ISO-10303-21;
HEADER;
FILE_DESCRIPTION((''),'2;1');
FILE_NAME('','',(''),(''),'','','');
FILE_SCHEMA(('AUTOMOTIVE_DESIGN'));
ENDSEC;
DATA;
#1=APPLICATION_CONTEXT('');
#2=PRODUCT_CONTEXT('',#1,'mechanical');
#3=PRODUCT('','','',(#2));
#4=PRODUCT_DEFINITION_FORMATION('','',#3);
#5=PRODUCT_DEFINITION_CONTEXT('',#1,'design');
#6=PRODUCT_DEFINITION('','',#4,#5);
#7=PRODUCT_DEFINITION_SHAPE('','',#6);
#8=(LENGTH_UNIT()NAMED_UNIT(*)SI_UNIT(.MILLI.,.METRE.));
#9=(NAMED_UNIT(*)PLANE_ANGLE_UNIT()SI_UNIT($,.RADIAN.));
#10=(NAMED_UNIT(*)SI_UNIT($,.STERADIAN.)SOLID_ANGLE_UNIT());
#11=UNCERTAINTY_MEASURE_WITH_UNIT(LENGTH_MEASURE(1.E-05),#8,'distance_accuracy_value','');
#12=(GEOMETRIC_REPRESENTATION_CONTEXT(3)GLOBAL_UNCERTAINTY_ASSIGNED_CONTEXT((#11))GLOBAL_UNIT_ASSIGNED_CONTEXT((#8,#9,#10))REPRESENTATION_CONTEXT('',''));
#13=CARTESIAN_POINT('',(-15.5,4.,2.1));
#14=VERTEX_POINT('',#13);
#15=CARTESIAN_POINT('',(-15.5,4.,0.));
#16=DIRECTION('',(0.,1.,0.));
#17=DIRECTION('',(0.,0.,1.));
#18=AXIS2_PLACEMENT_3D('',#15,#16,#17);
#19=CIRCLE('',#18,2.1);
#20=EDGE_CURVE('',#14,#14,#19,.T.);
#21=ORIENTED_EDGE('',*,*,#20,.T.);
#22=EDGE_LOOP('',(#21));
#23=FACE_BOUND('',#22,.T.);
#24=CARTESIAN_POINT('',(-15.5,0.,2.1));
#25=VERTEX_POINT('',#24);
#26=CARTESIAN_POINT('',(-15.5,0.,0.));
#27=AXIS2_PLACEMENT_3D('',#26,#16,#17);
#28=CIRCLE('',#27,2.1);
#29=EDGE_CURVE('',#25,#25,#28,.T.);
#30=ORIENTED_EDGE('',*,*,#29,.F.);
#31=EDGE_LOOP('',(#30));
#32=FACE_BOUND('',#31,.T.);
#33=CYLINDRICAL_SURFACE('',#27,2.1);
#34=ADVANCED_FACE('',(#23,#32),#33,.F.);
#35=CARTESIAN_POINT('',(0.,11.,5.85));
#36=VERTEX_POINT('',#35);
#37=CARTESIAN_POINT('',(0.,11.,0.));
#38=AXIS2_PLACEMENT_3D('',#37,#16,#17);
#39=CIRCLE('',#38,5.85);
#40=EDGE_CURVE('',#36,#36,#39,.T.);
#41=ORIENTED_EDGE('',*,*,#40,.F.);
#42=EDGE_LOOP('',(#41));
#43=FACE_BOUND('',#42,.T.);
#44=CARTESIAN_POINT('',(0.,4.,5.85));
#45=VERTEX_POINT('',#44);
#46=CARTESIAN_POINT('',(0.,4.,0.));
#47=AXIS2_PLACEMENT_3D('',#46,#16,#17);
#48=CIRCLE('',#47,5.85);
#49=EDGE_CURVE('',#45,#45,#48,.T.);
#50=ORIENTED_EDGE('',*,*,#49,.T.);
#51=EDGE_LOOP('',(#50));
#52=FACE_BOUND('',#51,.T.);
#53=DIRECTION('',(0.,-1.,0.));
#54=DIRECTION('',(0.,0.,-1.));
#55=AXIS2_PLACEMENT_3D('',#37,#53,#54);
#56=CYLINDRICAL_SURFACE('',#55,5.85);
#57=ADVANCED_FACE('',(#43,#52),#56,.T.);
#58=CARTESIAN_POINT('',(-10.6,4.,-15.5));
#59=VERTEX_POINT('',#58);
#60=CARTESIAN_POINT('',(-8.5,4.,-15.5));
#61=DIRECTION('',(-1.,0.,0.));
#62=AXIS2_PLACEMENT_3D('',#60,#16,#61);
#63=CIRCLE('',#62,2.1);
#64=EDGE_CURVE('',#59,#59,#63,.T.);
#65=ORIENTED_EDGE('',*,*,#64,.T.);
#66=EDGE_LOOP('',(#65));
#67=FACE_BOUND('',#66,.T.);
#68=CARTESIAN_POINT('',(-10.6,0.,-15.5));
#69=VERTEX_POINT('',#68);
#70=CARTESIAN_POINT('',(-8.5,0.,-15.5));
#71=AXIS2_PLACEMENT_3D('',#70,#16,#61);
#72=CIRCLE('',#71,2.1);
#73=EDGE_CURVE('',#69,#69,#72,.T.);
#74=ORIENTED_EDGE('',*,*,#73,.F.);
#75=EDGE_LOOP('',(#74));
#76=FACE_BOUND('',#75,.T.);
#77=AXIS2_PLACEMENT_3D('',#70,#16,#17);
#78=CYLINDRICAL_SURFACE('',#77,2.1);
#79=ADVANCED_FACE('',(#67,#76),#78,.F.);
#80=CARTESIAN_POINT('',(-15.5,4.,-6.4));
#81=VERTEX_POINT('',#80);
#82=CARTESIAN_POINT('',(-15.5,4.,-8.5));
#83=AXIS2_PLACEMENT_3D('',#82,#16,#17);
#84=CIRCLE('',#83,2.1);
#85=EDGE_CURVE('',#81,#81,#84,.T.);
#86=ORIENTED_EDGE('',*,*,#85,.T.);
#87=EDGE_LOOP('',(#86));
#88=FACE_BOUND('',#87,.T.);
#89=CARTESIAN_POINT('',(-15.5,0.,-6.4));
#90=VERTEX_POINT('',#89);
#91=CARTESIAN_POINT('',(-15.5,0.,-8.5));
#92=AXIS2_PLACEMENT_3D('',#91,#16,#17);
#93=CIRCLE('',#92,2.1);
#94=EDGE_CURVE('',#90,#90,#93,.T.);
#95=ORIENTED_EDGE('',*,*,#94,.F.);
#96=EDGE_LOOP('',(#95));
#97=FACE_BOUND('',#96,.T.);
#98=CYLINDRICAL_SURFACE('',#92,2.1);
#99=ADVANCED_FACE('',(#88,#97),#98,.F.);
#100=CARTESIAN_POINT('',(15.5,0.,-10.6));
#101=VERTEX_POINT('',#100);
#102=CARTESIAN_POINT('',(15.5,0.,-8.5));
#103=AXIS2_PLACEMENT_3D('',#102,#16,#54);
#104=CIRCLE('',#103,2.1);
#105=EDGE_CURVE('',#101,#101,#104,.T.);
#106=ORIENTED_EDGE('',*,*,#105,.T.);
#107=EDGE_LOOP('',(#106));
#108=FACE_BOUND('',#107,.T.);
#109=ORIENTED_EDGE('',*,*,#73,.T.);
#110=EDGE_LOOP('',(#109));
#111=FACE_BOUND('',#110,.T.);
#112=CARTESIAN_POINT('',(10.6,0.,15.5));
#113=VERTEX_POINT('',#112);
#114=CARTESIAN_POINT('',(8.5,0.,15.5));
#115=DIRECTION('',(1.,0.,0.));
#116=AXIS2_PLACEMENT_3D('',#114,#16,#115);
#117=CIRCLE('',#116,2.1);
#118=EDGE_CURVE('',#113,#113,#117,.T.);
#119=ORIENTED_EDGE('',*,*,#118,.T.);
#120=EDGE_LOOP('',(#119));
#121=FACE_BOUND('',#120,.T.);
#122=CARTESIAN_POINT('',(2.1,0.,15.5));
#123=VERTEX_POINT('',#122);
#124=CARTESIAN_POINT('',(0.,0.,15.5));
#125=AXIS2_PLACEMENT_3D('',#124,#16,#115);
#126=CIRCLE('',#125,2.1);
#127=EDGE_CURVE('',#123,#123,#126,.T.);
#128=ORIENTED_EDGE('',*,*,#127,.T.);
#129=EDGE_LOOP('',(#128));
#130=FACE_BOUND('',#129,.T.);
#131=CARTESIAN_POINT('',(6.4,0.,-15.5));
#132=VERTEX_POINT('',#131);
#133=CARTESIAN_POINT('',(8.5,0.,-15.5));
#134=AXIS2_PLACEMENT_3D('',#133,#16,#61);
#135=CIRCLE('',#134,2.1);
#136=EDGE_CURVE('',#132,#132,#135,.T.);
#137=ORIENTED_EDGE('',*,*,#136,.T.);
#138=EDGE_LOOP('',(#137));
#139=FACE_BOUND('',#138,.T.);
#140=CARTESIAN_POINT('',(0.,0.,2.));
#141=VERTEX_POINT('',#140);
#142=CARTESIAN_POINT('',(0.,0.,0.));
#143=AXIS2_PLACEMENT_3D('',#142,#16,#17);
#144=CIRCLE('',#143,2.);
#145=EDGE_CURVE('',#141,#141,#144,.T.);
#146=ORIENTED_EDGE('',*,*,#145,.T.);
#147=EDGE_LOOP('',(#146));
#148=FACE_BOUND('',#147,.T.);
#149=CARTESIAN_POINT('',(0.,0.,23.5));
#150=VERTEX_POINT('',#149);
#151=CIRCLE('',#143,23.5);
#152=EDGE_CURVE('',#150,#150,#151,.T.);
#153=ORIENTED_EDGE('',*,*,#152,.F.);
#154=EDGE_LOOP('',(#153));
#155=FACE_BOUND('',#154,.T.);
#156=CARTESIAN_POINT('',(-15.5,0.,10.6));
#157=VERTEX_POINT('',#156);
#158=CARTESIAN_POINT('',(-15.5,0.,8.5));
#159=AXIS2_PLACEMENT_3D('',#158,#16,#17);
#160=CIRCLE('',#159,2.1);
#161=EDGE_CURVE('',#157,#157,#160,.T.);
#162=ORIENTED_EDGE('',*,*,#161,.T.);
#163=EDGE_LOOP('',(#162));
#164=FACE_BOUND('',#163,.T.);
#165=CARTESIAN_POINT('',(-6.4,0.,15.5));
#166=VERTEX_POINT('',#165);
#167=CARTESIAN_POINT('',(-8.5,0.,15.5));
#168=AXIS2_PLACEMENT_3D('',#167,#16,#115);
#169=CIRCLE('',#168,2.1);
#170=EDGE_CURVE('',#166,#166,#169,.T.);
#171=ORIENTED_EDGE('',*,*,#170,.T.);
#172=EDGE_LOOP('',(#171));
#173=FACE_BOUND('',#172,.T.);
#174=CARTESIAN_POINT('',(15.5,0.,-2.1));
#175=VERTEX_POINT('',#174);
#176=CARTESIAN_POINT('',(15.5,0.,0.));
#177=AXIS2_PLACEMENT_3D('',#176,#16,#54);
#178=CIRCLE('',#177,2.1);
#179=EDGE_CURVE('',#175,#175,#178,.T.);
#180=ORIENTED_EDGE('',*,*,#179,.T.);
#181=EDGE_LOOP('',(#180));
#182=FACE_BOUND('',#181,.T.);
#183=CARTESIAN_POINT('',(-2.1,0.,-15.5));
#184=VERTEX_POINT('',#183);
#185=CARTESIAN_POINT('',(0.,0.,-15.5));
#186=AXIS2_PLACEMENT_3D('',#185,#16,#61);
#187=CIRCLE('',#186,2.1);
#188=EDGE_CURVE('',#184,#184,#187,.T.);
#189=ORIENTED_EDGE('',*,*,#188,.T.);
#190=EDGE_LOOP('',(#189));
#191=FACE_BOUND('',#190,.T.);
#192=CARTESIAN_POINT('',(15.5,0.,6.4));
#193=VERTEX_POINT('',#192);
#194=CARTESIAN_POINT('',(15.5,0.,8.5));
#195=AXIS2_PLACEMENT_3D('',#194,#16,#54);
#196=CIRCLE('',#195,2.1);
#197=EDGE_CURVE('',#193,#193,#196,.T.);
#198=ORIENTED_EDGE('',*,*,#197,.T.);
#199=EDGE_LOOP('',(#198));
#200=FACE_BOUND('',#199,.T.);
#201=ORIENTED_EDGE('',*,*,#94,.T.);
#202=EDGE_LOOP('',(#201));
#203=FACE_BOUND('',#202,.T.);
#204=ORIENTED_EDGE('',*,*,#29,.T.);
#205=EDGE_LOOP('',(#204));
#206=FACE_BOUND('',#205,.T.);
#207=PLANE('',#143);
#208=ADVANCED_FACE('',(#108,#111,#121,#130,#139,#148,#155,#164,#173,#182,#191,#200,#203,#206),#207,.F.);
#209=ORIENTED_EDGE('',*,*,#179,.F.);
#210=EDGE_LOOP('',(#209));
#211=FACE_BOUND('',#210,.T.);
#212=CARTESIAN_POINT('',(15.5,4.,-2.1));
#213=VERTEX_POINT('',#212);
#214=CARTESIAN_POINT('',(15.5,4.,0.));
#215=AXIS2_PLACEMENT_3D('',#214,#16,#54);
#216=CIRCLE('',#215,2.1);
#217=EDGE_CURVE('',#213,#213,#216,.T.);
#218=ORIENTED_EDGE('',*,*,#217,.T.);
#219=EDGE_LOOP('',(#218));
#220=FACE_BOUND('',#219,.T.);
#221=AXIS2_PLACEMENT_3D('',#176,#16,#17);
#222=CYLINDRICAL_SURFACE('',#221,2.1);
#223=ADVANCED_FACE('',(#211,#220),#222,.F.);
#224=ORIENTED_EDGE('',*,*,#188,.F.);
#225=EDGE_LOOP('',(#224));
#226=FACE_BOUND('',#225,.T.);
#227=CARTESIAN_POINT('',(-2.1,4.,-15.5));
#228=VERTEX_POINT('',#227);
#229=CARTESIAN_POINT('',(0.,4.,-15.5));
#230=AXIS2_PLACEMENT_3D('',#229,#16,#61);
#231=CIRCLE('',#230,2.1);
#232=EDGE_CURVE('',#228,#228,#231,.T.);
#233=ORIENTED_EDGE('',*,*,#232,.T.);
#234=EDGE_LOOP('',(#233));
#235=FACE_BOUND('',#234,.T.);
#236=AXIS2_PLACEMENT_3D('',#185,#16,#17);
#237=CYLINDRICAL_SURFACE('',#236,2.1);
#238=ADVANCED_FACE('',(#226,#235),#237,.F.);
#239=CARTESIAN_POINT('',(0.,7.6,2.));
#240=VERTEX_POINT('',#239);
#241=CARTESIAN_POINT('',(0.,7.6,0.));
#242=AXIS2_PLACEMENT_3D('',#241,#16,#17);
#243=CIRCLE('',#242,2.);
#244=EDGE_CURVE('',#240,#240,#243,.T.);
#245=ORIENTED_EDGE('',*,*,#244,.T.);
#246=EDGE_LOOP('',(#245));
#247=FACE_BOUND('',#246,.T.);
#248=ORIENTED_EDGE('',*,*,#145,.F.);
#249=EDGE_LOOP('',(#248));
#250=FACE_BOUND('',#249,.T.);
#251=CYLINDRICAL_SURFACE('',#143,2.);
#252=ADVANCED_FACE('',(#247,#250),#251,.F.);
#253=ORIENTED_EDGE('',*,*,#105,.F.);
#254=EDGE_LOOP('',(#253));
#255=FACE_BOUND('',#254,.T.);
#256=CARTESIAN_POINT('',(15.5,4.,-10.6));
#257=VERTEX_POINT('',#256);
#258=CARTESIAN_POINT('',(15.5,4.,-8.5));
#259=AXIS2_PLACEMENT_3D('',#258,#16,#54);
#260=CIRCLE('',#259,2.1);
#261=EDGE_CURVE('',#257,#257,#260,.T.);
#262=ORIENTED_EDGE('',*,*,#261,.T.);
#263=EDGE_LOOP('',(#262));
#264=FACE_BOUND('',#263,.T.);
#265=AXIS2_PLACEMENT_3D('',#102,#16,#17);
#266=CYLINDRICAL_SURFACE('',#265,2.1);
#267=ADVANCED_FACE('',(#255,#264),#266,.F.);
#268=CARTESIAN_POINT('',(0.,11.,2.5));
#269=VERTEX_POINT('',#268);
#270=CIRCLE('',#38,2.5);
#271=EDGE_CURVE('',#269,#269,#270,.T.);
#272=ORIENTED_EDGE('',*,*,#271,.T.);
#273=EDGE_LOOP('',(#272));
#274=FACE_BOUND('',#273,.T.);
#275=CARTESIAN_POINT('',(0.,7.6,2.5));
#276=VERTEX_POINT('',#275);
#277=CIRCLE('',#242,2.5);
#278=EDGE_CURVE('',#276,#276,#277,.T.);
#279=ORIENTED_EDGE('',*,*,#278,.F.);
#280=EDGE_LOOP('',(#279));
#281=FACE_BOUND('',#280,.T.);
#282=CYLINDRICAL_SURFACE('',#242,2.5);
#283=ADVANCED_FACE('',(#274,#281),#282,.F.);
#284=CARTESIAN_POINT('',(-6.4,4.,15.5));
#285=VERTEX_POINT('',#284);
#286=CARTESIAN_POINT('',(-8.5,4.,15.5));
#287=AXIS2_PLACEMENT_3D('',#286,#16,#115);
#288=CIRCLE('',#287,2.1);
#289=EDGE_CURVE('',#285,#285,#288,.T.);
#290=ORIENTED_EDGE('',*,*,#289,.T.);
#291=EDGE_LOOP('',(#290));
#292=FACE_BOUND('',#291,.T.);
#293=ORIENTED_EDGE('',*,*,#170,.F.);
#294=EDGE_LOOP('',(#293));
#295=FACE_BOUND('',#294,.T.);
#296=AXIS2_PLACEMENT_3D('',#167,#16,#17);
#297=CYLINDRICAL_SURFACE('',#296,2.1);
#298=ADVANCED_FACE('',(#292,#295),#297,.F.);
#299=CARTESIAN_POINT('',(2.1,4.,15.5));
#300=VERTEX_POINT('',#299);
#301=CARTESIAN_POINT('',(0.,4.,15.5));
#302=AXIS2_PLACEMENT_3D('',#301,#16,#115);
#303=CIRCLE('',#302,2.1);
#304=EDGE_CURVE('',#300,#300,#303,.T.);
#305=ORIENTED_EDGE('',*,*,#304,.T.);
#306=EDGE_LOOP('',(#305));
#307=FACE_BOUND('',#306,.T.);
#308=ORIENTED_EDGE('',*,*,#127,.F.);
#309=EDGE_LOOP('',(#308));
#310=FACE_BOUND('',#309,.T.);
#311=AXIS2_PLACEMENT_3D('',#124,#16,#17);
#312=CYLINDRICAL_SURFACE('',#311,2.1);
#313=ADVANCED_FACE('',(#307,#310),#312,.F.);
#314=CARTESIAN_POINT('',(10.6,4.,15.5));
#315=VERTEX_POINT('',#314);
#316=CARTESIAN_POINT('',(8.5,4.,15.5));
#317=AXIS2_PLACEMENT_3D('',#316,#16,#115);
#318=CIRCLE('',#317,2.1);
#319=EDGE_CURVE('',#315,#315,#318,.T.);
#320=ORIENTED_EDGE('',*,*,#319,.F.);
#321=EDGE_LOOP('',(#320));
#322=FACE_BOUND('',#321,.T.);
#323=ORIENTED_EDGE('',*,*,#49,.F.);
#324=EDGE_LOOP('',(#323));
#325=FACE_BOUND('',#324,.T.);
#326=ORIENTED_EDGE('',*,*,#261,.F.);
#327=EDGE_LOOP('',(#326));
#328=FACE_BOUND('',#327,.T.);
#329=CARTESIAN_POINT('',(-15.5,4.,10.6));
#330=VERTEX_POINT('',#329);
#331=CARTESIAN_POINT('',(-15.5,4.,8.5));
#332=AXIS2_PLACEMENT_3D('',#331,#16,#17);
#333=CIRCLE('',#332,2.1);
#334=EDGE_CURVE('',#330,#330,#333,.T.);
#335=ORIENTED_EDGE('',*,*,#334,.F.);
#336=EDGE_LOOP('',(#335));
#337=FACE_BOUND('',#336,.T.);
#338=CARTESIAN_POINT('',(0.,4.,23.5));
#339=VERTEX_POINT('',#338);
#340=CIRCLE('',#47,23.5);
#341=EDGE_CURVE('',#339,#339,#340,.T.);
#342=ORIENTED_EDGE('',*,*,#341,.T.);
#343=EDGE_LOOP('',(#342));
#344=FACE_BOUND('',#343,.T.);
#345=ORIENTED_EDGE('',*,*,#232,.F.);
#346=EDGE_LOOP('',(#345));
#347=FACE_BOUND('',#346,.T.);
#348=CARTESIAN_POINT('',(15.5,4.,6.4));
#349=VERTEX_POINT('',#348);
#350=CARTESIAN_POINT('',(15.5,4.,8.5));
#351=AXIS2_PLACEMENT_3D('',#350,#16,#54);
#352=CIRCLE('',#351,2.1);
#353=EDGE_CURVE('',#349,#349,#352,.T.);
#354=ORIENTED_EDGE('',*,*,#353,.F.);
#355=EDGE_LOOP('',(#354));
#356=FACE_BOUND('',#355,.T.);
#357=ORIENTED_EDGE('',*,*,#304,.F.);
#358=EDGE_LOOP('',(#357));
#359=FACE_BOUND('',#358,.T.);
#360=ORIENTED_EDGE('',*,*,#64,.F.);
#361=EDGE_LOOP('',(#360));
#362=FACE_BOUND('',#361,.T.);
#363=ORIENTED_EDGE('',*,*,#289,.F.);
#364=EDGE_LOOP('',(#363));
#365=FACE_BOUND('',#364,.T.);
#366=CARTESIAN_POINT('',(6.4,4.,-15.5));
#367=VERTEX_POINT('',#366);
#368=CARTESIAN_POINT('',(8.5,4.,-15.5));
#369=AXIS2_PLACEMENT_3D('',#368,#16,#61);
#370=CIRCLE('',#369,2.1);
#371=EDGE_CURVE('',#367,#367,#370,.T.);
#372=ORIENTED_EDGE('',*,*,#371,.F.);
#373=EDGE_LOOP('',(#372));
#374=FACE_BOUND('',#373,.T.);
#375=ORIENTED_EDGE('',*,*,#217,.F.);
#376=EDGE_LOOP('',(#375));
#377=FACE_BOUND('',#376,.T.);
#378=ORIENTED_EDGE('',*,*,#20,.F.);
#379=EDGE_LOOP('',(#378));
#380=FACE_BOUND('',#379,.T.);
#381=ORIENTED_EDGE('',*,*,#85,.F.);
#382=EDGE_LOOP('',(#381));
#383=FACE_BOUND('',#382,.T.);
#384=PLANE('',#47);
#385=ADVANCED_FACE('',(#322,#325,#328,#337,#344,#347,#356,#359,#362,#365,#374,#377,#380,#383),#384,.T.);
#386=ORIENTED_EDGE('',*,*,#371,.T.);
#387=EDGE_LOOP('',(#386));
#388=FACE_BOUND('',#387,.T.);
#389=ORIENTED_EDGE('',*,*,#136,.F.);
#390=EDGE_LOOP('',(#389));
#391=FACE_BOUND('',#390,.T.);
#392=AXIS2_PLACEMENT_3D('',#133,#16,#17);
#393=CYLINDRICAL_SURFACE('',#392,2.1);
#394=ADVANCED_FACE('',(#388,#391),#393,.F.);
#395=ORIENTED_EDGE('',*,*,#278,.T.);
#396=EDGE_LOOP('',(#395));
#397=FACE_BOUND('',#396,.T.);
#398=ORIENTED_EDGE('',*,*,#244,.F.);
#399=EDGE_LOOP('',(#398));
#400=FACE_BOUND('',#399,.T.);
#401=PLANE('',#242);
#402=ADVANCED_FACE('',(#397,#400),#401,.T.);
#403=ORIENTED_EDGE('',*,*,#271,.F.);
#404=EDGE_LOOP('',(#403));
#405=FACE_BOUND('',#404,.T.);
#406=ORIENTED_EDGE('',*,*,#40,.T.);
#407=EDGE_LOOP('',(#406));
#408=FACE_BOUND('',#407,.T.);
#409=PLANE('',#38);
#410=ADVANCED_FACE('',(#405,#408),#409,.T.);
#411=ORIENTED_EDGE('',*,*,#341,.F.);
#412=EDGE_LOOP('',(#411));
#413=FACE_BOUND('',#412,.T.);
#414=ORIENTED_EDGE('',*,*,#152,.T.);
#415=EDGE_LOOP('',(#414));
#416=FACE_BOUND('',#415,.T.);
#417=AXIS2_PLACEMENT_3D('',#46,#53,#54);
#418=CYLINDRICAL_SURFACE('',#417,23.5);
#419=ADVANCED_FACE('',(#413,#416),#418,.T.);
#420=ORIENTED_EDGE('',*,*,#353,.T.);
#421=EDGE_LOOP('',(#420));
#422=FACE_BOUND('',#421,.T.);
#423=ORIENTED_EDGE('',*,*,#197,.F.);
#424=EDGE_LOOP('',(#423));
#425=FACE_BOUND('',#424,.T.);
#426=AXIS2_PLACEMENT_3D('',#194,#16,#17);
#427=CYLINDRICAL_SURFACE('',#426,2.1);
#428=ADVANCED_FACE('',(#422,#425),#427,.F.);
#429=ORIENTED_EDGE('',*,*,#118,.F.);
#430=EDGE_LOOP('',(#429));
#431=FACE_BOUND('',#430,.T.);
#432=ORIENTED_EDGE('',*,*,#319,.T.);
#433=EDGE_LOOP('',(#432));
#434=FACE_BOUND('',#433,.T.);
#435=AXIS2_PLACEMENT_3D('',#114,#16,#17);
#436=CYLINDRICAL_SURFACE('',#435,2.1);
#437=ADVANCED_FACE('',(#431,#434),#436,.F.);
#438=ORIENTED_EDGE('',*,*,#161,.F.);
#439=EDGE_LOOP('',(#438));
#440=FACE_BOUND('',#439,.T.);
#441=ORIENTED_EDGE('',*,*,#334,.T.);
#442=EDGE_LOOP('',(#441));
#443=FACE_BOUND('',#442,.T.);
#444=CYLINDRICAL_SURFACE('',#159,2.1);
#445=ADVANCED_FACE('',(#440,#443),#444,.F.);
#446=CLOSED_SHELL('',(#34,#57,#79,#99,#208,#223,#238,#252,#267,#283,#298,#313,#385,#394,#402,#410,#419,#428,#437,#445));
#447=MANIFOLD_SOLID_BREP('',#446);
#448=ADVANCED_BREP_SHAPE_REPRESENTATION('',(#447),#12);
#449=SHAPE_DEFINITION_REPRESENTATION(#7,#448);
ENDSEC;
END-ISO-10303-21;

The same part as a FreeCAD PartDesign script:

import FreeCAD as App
import Part
import Sketcher

V = App.Vector

doc = App.newDocument("Part")
body = doc.addObject("PartDesign::Body", "Body")

sketch1 = body.newObject("Sketcher::SketchObject", "Sketch")
sketch1.AttachmentSupport = (doc.getObject("XZ_Plane"), [""])
sketch1.MapMode = "FlatFace"
sketch1.addGeometry(Part.Circle(V(0, 0, 0), V(0, 0, 1), 24), False)
sketch1.addConstraint(Sketcher.Constraint("Coincident", 0, 3, -1, 1))
sketch1.addConstraint(Sketcher.Constraint("Diameter", 0, 47.0))
pad1 = body.newObject("PartDesign::Pad", "Pad")
pad1.Profile = sketch1
pad1.Length = 4
pad1.Reversed = True

sketch2 = body.newObject("Sketcher::SketchObject", "Sketch001")
sketch2.AttachmentSupport = (doc.getObject("XZ_Plane"), [""])
sketch2.MapMode = "FlatFace"
sketch2.AttachmentOffset = App.Placement(V(0, 0, -4), App.Rotation())
sketch2.addGeometry(Part.Circle(V(0, 0, 0), V(0, 0, 1), 6), False)
sketch2.addConstraint(Sketcher.Constraint("Coincident", 0, 3, -1, 1))
sketch2.addConstraint(Sketcher.Constraint("Diameter", 0, 11.7))
pad2 = body.newObject("PartDesign::Pad", "Pad001")
pad2.Profile = sketch2
pad2.Length = 7
pad2.Reversed = True

sketch3 = body.newObject("Sketcher::SketchObject", "Sketch002")
sketch3.AttachmentSupport = (doc.getObject("XZ_Plane"), [""])
sketch3.MapMode = "FlatFace"
sketch3.AttachmentOffset = App.Placement(V(0, 0, -11), App.Rotation())
sketch3.addGeometry(Part.Circle(V(0, 0, 0), V(0, 0, 1), 2.5), False)
sketch3.addConstraint(Sketcher.Constraint("Coincident", 0, 3, -1, 1))
sketch3.addConstraint(Sketcher.Constraint("Diameter", 0, 5.0))
pocket1 = body.newObject("PartDesign::Pocket", "Pocket")
pocket1.Profile = sketch3
pocket1.Length = 3.4
pocket1.Reversed = True

sketch4 = body.newObject("Sketcher::SketchObject", "Sketch003")
sketch4.AttachmentSupport = (doc.getObject("XZ_Plane"), [""])
sketch4.MapMode = "FlatFace"
sketch4.AttachmentOffset = App.Placement(V(0, 0, -4), App.Rotation())
sketch4.addGeometry(Part.Circle(V(-15.5, 0, 0), V(0, 0, 1), 2.1), False)
sketch4.addGeometry(Part.Circle(V(-15.5, -8.5, 0), V(0, 0, 1), 2.1), False)
sketch4.addGeometry(Part.Circle(V(-15.5, 8.5, 0), V(0, 0, 1), 2.1), False)
sketch4.addConstraint(Sketcher.Constraint("Equal", 0, 1))
sketch4.addConstraint(Sketcher.Constraint("Equal", 1, 2))
sketch4.addConstraint(Sketcher.Constraint("Symmetric", 1, 3, 2, 3, -1))
sketch4.addConstraint(Sketcher.Constraint("PointOnObject", 0, 3, -1))
sketch4.addConstraint(Sketcher.Constraint("Vertical", 0, 3, 1, 3))
sketch4.addConstraint(Sketcher.Constraint("Diameter", 0, 4.2))
sketch4.addConstraint(Sketcher.Constraint("DistanceY", 1, 3, 2, 3, 17.0))
sketch4.addConstraint(Sketcher.Constraint("DistanceX", 0, 3, -1, 1, 15.5))
pocket2 = body.newObject("PartDesign::Pocket", "Pocket001")
pocket2.Profile = sketch4
pocket2.Type = "ThroughAll"
pocket2.Reversed = True
doc.recompute()

polarpattern = body.newObject("PartDesign::PolarPattern", "PolarPattern")
polarpattern.Originals = [pocket2]
polarpattern.Axis = (doc.getObject("Y_Axis"), [""])
polarpattern.Angle = 360
polarpattern.Occurrences = 4
body.Tip = polarpattern

sketch5 = body.newObject("Sketcher::SketchObject", "Sketch004")
sketch5.AttachmentSupport = (doc.getObject("XZ_Plane"), [""])
sketch5.MapMode = "FlatFace"
sketch5.AttachmentOffset = App.Placement(V(0, 0, -7.6), App.Rotation())
sketch5.addGeometry(Part.Circle(V(0, 0, 0), V(0, 0, 1), 2), False)
sketch5.addConstraint(Sketcher.Constraint("Coincident", 0, 3, -1, 1))
sketch5.addConstraint(Sketcher.Constraint("Diameter", 0, 4.0))
pocket3 = body.newObject("PartDesign::Pocket", "Pocket002")
pocket3.Profile = sketch5
pocket3.Type = "ThroughAll"
pocket3.Reversed = True

doc.recompute()
